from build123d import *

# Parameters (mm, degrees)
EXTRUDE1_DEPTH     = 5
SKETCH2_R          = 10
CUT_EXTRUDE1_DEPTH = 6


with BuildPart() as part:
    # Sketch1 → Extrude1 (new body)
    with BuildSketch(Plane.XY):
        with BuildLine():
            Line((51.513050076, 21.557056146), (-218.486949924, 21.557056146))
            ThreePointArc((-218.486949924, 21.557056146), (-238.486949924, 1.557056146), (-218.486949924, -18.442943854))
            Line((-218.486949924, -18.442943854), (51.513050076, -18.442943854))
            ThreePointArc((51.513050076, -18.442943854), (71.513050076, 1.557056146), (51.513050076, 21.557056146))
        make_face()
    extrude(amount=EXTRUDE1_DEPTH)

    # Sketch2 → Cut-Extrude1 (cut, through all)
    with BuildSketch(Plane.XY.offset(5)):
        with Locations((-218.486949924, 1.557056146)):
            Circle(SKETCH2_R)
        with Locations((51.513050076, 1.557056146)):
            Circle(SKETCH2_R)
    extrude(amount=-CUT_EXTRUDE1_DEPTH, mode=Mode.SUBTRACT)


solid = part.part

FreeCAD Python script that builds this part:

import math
import FreeCAD as App
import Part
import Sketcher
from FreeCAD import Vector

doc = App.newDocument("Part")
body = doc.addObject("PartDesign::Body", "Body")

sketch1 = body.newObject("Sketcher::SketchObject", "Sketch")
sketch1.AttachmentSupport = (doc.getObject("XY_Plane"), [""])
sketch1.MapMode = "FlatFace"
sketch1.addGeometry([
    Part.LineSegment(Vector(52, 22, 0), Vector(-218, 22, 0)),
    Part.ArcOfCircle(Part.Circle(Vector(-218, 2, 0), Vector(0, 0, 1), 20), math.radians(90), math.radians(270)),
    Part.LineSegment(Vector(-218, -18, 0), Vector(52, -18, 0)),
    Part.ArcOfCircle(Part.Circle(Vector(52, 2, 0), Vector(0, 0, 1), 20), math.radians(-90), math.radians(90)),
], False)
sketch1.addConstraint([
    Sketcher.Constraint("Tangent", 0, 2, 1, 1),
    Sketcher.Constraint("Tangent", 1, 2, 2, 1),
    Sketcher.Constraint("Tangent", 2, 2, 3, 1),
    Sketcher.Constraint("Tangent", 3, 2, 0, 1),
    Sketcher.Constraint("Horizontal", 0),
    Sketcher.Constraint("Horizontal", 2),
    Sketcher.Constraint("Radius", 1, 20.0),
    Sketcher.Constraint("DistanceX", 0, 2, 0, 1, 270.0),
    Sketcher.Constraint("DistanceX", 1, 3, -1, 1, 218.48695),
    Sketcher.Constraint("DistanceY", -1, 1, 1, 3, 1.557056),
])
pad1 = body.newObject("PartDesign::Pad", "Pad")
pad1.Profile = sketch1
pad1.Length = 5

sketch2 = body.newObject("Sketcher::SketchObject", "Sketch001")
sketch2.AttachmentSupport = (doc.getObject("XY_Plane"), [""])
sketch2.MapMode = "FlatFace"
sketch2.AttachmentOffset = App.Placement(Vector(0, 0, 5), App.Rotation())
sketch2.addGeometry([
    Part.Circle(Vector(-218, 2, 0), Vector(0, 0, 1), 10),
    Part.Circle(Vector(52, 2, 0), Vector(0, 0, 1), 10),
], False)
sketch2.addConstraint([
    Sketcher.Constraint("Equal", 0, 1),
    Sketcher.Constraint("Horizontal", 0, 3, 1, 3),
    Sketcher.Constraint("Diameter", 0, 20.0),
    Sketcher.Constraint("DistanceX", 0, 3, 1, 3, 270.0),
    Sketcher.Constraint("DistanceX", 0, 3, -1, 1, 218.48695),
    Sketcher.Constraint("DistanceY", -1, 1, 0, 3, 1.557056),
])
pocket1 = body.newObject("PartDesign::Pocket", "Pocket")
pocket1.Profile = sketch2
pocket1.Type = "ThroughAll"

doc.recompute()
